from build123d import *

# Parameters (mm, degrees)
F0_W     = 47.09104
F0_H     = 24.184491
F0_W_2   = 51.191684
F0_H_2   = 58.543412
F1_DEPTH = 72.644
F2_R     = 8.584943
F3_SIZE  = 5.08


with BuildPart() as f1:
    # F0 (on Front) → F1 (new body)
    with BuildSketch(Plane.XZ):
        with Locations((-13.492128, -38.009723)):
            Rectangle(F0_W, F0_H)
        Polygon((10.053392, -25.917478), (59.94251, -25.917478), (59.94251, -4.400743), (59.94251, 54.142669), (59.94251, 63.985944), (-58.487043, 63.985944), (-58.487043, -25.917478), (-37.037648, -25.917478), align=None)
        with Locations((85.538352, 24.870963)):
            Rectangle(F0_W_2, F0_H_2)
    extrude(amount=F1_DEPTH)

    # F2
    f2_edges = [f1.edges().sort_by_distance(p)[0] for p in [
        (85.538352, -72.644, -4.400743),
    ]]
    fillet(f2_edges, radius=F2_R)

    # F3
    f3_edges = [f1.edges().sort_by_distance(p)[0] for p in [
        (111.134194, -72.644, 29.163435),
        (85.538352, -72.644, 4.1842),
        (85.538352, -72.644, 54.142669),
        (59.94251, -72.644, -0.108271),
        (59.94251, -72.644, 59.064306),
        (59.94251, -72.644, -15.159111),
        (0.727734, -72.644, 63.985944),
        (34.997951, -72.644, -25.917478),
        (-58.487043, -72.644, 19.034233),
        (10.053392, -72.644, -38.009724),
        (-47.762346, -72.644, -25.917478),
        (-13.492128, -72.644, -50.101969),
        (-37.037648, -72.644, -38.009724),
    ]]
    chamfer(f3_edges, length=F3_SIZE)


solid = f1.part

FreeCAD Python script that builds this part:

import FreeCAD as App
import Part
import Sketcher
from FreeCAD import Vector
Q = App.Units.Quantity


def edges_at(feature, points):
    """Names of the edges that pass closest to the given points."""
    edges = feature.Shape.Edges
    near = lambda p: min(range(len(edges)), key=lambda i: edges[i].distToShape(Part.Vertex(*p))[0])
    return sorted({f"Edge{near(p) + 1}" for p in points})

doc = App.newDocument("Part")
body = doc.addObject("PartDesign::Body", "Body")

sketch1 = doc.addObject("Sketcher::SketchObject", "Sketch")
body.addObject(sketch1)
sketch1.AttachmentSupport = (doc.XZ_Plane, [""])
sketch1.MapMode = "FlatFace"
sketch1.addGeometry([
    Part.LineSegment(Vector(-37, -26, 0), Vector(-37, -50, 0)),
    Part.LineSegment(Vector(-37, -50, 0), Vector(10, -50, 0)),
    Part.LineSegment(Vector(10, -50, 0), Vector(10, -26, 0)),
    Part.LineSegment(Vector(10, -26, 0), Vector(60, -26, 0)),
    Part.LineSegment(Vector(60, -26, 0), Vector(60, -4, 0)),
    Part.LineSegment(Vector(60, -4, 0), Vector(111, -4, 0)),
    Part.LineSegment(Vector(111, -4, 0), Vector(111, 54, 0)),
    Part.LineSegment(Vector(111, 54, 0), Vector(60, 54, 0)),
    Part.LineSegment(Vector(60, 54, 0), Vector(60, 64, 0)),
    Part.LineSegment(Vector(60, 64, 0), Vector(-58, 64, 0)),
    Part.LineSegment(Vector(-58, 64, 0), Vector(-58, -26, 0)),
    Part.LineSegment(Vector(-58, -26, 0), Vector(-37, -26, 0)),
], False)
sketch1.addConstraint([
    Sketcher.Constraint("Coincident", 0, 2, 1, 1),
    Sketcher.Constraint("Coincident", 1, 2, 2, 1),
    Sketcher.Constraint("Coincident", 2, 2, 3, 1),
    Sketcher.Constraint("Coincident", 3, 2, 4, 1),
    Sketcher.Constraint("Coincident", 4, 2, 5, 1),
    Sketcher.Constraint("Coincident", 5, 2, 6, 1),
    Sketcher.Constraint("Coincident", 6, 2, 7, 1),
    Sketcher.Constraint("Coincident", 7, 2, 8, 1),
    Sketcher.Constraint("Coincident", 8, 2, 9, 1),
    Sketcher.Constraint("Coincident", 9, 2, 10, 1),
    Sketcher.Constraint("Coincident", 10, 2, 11, 1),
    Sketcher.Constraint("Coincident", 11, 2, 0, 1),
    Sketcher.Constraint("Vertical", 0),
    Sketcher.Constraint("Horizontal", 1),
    Sketcher.Constraint("Vertical", 2),
    Sketcher.Constraint("Horizontal", 3),
    Sketcher.Constraint("Vertical", 4),
    Sketcher.Constraint("Horizontal", 5),
    Sketcher.Constraint("Vertical", 6),
    Sketcher.Constraint("Horizontal", 7),
    Sketcher.Constraint("Vertical", 8),
    Sketcher.Constraint("Horizontal", 9),
    Sketcher.Constraint("Vertical", 10),
    Sketcher.Constraint("Horizontal", 11),
    Sketcher.Constraint("Horizontal", 3, 2, 10, 2),
    Sketcher.Constraint("Vertical", 4, 2, 7, 2),
    Sketcher.Constraint("DistanceX", 1, 1, 1, 2, 47.09104),
    Sketcher.Constraint("DistanceY", 0, 2, 0, 1, 24.18449),
    Sketcher.Constraint("DistanceY", 6, 1, 6, 2, 58.543412),
    Sketcher.Constraint("DistanceX", 2, 2, 5, 2, 101.080802),
    Sketcher.Constraint("DistanceX", 3, 1, 3, 2, 49.889118),
    Sketcher.Constraint("DistanceX", 9, 2, 9, 1, 118.429553),
    Sketcher.Constraint("DistanceY", 4, 1, 4, 2, 21.516735),
    Sketcher.Constraint("DistanceY", 8, 1, 8, 2, 9.843275),
    Sketcher.Constraint("DistanceY", 0, 2, -1, 1, 50.101968),
    Sketcher.Constraint("DistanceX", -1, 1, 3, 2, 59.94251),
])
pad1 = doc.addObject("PartDesign::Pad", "Pad")
body.addObject(pad1)
pad1.Profile = sketch1
pad1.Length = Q("2.86 in")
doc.recompute()

fillet = doc.addObject("PartDesign::Fillet", "Fillet")
body.addObject(fillet)
fillet.Base = (pad1, edges_at(pad1, [(85.538, -72.644, -4.401)]))
fillet.Radius = 8.584943
doc.recompute()

chamfer = doc.addObject("PartDesign::Chamfer", "Chamfer")
body.addObject(chamfer)
chamfer.Base = (fillet, edges_at(fillet, [
    (111.134, -72.644, 29.163),
    (85.538, -72.644, 4.184),
    (85.538, -72.644, 54.143),
    (59.943, -72.644, -10.867),
    (59.943, -72.644, 59.064),
    (59.943, -72.644, -10.867),
    (0.728, -72.644, 63.986),
    (34.998, -72.644, -25.917),
    (-58.487, -72.644, 19.034),
    (10.053, -72.644, -38.01),
    (-47.762, -72.644, -25.917),
    (-13.492, -72.644, -50.102),
    (-37.038, -72.644, -38.01),
]))
chamfer.Size = Q("0.2 in")

doc.recompute()
